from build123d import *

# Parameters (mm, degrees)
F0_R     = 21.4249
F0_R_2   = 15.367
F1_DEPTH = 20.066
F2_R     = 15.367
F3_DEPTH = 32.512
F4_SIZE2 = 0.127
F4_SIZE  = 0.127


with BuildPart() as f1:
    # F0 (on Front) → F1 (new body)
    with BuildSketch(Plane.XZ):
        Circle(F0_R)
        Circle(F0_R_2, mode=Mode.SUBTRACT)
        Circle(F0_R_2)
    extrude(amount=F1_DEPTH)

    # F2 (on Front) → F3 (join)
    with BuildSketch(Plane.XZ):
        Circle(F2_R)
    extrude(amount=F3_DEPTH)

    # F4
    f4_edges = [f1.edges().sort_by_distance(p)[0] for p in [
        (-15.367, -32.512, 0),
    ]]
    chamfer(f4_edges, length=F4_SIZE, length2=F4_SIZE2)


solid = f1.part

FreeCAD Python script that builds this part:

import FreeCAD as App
import Part
import Sketcher

V = App.Vector
Q = App.Units.Quantity


def edges_at(feature, points):
    """Names of the edges that pass closest to the given points."""
    edges = feature.Shape.Edges
    near = lambda p: min(range(len(edges)), key=lambda i: edges[i].distToShape(Part.Vertex(*p))[0])
    return sorted({f"Edge{near(p) + 1}" for p in points})

doc = App.newDocument("Part")
body = doc.addObject("PartDesign::Body", "Body")

# Sketch on XZ plane
sketch1 = body.newObject("Sketcher::SketchObject", "Sketch")
sketch1.AttachmentSupport = (doc.getObject("XZ_Plane"), [""])
sketch1.MapMode = "FlatFace"
sketch1.addGeometry(Part.Circle(V(0, 0, 0), V(0, 0, 1), 21), False)
sketch1.addConstraint([
    Sketcher.Constraint("Coincident", 0, 3, -1, 1),
    Sketcher.Constraint("Diameter", 0, Q("1.687 in")),
])
pad1 = body.newObject("PartDesign::Pad", "Pad")
pad1.Profile = sketch1
pad1.Length = Q("0.79 in")

# Sketch on XZ plane
sketch2 = body.newObject("Sketcher::SketchObject", "Sketch001")
sketch2.AttachmentSupport = (doc.getObject("XZ_Plane"), [""])
sketch2.MapMode = "FlatFace"
sketch2.addGeometry(Part.Circle(V(0, 0, 0), V(0, 0, 1), 15), False)
sketch2.addConstraint([
    Sketcher.Constraint("Coincident", 0, 3, -1, 1),
    Sketcher.Constraint("Diameter", 0, Q("1.21 in")),
])
pad2 = body.newObject("PartDesign::Pad", "Pad001")
pad2.Profile = sketch2
pad2.Length = Q("1.28 in")
doc.recompute()

chamfer = body.newObject("PartDesign::Chamfer", "Chamfer")
chamfer.Base = (pad2, edges_at(pad2, [(-15.367, -32.512, 0)]))
chamfer.ChamferType = "Two distances"
chamfer.Size = Q("0.005 in")
chamfer.Size2 = Q("0.005 in")

doc.recompute()
